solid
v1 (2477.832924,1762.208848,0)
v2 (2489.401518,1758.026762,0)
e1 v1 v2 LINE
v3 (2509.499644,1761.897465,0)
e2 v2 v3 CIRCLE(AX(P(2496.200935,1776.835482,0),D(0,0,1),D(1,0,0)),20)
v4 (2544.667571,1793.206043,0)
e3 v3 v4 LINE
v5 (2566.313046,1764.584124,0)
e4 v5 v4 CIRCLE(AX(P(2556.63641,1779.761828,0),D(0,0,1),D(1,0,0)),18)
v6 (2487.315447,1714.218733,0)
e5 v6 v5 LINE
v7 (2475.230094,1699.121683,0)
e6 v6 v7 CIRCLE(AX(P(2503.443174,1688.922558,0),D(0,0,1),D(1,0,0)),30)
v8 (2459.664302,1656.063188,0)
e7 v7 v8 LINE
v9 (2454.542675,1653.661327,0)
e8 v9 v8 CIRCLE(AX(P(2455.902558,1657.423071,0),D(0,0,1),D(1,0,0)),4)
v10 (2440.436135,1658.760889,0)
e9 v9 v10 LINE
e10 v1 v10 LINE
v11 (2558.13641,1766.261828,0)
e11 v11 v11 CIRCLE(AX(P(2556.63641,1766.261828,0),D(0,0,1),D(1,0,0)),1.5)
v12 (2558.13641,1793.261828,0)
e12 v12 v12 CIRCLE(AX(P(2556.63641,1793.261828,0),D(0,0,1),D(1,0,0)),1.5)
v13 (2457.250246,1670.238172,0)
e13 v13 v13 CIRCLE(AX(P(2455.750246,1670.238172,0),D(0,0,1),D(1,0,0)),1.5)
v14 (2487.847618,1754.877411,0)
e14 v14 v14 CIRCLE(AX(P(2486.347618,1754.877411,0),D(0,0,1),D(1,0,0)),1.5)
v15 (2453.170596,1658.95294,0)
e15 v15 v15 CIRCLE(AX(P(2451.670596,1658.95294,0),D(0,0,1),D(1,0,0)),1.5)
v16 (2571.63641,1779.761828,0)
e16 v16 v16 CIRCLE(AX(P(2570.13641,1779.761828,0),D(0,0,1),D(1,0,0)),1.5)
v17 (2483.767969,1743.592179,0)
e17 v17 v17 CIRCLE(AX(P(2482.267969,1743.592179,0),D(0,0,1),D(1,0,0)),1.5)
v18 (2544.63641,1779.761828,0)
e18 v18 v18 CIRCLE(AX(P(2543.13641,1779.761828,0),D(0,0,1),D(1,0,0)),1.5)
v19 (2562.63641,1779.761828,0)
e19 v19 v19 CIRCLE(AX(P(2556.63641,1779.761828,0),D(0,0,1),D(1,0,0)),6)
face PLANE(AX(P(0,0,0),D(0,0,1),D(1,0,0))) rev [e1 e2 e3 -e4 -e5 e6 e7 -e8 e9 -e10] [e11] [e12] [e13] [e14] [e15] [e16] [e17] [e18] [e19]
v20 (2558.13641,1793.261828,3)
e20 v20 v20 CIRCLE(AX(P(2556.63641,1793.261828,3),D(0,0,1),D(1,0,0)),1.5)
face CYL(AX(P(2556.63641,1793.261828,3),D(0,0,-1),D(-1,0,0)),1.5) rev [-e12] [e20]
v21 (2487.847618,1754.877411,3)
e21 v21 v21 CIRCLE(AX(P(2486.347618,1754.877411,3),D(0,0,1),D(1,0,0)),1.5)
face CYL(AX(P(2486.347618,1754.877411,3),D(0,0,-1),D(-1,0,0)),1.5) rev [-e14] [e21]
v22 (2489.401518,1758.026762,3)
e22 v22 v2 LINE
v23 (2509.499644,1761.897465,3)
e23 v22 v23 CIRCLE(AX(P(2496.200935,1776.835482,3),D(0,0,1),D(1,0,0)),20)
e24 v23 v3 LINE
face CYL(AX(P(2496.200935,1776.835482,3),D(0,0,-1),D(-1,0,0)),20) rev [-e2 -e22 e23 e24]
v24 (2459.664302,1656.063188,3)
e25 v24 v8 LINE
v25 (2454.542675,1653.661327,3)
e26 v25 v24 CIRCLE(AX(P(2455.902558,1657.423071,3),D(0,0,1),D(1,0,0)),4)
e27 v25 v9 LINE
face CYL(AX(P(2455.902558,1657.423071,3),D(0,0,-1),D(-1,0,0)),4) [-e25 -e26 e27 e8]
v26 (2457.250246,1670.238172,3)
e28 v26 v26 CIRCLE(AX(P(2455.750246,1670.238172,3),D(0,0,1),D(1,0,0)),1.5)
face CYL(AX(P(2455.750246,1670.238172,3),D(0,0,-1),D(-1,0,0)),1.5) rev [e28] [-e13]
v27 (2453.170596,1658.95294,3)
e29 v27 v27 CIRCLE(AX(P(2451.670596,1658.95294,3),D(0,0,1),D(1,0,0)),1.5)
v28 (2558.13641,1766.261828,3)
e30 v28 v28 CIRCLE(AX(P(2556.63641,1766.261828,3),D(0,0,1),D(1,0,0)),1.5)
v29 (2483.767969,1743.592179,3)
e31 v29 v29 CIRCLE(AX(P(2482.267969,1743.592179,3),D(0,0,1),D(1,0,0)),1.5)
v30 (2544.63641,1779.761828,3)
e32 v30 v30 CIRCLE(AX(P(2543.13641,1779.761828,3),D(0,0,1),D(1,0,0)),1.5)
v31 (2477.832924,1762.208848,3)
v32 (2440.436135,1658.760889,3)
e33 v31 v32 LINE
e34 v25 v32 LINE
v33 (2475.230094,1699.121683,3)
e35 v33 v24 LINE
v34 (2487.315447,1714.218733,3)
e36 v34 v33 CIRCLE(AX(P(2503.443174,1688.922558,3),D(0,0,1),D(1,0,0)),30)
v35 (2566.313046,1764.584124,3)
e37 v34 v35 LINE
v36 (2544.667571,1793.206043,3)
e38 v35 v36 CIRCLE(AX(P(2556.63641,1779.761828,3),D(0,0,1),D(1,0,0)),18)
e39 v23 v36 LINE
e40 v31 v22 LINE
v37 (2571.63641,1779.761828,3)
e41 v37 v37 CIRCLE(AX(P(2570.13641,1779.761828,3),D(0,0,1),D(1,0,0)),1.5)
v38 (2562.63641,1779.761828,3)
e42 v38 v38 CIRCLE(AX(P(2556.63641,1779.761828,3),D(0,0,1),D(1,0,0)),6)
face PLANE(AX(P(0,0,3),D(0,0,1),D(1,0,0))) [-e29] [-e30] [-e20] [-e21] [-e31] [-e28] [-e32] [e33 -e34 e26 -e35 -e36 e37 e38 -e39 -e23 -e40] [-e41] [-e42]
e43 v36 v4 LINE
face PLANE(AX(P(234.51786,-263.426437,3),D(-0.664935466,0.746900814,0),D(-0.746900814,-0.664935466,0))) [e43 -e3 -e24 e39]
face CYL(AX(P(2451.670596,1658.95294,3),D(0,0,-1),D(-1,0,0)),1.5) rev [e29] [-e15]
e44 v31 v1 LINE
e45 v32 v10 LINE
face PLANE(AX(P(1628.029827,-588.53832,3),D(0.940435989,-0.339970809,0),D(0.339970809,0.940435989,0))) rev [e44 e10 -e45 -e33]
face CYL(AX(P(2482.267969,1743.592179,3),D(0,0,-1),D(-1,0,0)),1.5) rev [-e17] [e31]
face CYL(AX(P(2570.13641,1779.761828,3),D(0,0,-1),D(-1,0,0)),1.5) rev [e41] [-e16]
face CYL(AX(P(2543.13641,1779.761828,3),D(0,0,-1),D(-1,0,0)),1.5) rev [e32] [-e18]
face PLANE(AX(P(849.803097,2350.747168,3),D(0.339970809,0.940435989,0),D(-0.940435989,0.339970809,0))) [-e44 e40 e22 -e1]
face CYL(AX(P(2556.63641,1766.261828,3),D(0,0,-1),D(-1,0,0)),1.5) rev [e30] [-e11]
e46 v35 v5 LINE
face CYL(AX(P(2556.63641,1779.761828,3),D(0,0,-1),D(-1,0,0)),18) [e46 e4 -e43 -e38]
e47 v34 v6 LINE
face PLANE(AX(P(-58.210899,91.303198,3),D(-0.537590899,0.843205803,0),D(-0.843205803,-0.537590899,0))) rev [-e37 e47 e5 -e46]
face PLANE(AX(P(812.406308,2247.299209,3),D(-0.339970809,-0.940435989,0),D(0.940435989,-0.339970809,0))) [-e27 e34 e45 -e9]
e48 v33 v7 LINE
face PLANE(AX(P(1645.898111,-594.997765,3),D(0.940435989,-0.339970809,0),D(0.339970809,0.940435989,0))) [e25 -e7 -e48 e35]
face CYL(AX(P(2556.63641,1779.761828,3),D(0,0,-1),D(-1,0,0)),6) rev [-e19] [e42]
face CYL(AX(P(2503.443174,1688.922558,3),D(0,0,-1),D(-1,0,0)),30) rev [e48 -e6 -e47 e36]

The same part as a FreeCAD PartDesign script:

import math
import FreeCAD as App
import Part
import Sketcher

V = App.Vector
Q = App.Units.Quantity

doc = App.newDocument("Part")
body = doc.addObject("PartDesign::Body", "Body")

# Sketch on XY plane
sketch1 = body.newObject("Sketcher::SketchObject", "Sketch")
sketch1.AttachmentSupport = (doc.getObject("XY_Plane"), [""])
sketch1.MapMode = "FlatFace"
sketch1.addGeometry(Part.LineSegment(V(2489.401518, 1758.026762, 0), V(2477.832924, 1762.208848, 0)), False)
sketch1.addGeometry(Part.LineSegment(V(2477.832924, 1762.208848, 0), V(2447.235551, 1677.569609, 0)), False)
sketch1.addGeometry(Part.LineSegment(V(2447.235551, 1677.569609, 0), V(2440.436135, 1658.760889, 0)), False)
sketch1.addGeometry(Part.LineSegment(V(2440.436135, 1658.760889, 0), V(2441.846789, 1658.250933, 0)), False)
sketch1.addGeometry(Part.LineSegment(V(2441.846789, 1658.250933, 0), V(2446.548969, 1656.551079, 0)), False)
sketch1.addGeometry(Part.LineSegment(V(2446.548969, 1656.551079, 0), V(2453.602239, 1654.001298, 0)), False)
sketch1.addGeometry(Part.LineSegment(V(2453.602239, 1654.001298, 0), V(2454.542675, 1653.661327, 0)), False)
sketch1.addGeometry(Part.ArcOfCircle(Part.Circle(V(2455.902558, 1657.423071, 0), V(0, 0, 1), 4), math.radians(-109.875096), math.radians(-19.875096)), False)
sketch1.addGeometry(Part.LineSegment(V(2459.664302, 1656.063188, 0), V(2465.103835, 1671.110164, 0)), False)
sketch1.addGeometry(Part.LineSegment(V(2465.103835, 1671.110164, 0), V(2466.691626, 1675.502353, 0)), False)
sketch1.addGeometry(Part.LineSegment(V(2466.691626, 1675.502353, 0), V(2475.230094, 1699.121683, 0)), False)
sketch1.addGeometry(Part.ArcOfCircle(Part.Circle(V(2503.443174, 1688.922558, 0), V(0, 0, 1), 30), math.radians(122.519791), math.radians(160.124904)), False)
sketch1.addGeometry(Part.LineSegment(V(2487.315447, 1714.218733, 0), V(2566.313046, 1764.584124, 0)), False)
sketch1.addGeometry(Part.ArcOfCircle(Part.Circle(V(2556.63641, 1779.761828, 0), V(0, 0, 1), 18), math.radians(-57.480209), math.radians(131.677375)), False)
sketch1.addGeometry(Part.LineSegment(V(2544.667571, 1793.206043, 0), V(2509.499644, 1761.897465, 0)), False)
sketch1.addGeometry(Part.ArcOfCircle(Part.Circle(V(2496.200935, 1776.835482, 0), V(0, 0, 1), 20), math.radians(-109.875096), math.radians(-48.322625)), False)
sketch1.addGeometry(Part.Circle(V(2451.670596, 1658.95294, 0), V(0, 0, 1), 1.5), False)
sketch1.addGeometry(Part.Circle(V(2455.750246, 1670.238172, 0), V(0, 0, 1), 1.5), False)
sketch1.addGeometry(Part.Circle(V(2482.267969, 1743.592179, 0), V(0, 0, 1), 1.5), False)
sketch1.addGeometry(Part.Circle(V(2486.347618, 1754.877411, 0), V(0, 0, 1), 1.5), False)
sketch1.addGeometry(Part.Circle(V(2556.63641, 1766.261828, 0), V(0, 0, 1), 1.5), False)
sketch1.addGeometry(Part.Circle(V(2543.13641, 1779.761828, 0), V(0, 0, 1), 1.5), False)
sketch1.addGeometry(Part.Circle(V(2556.63641, 1779.761828, 0), V(0, 0, 1), 6), False)
sketch1.addGeometry(Part.Circle(V(2570.13641, 1779.761828, 0), V(0, 0, 1), 1.5), False)
sketch1.addGeometry(Part.Circle(V(2556.63641, 1793.261828, 0), V(0, 0, 1), 1.5), False)
sketch1.addConstraint(Sketcher.Constraint("Coincident", 0, 2, 1, 1))
sketch1.addConstraint(Sketcher.Constraint("Coincident", 1, 2, 2, 1))
sketch1.addConstraint(Sketcher.Constraint("Coincident", 2, 2, 3, 1))
sketch1.addConstraint(Sketcher.Constraint("Coincident", 3, 2, 4, 1))
sketch1.addConstraint(Sketcher.Constraint("Coincident", 4, 2, 5, 1))
sketch1.addConstraint(Sketcher.Constraint("Coincident", 5, 2, 6, 1))
sketch1.addConstraint(Sketcher.Constraint("Tangent", 6, 2, 7, 1))
sketch1.addConstraint(Sketcher.Constraint("Tangent", 7, 2, 8, 1))
sketch1.addConstraint(Sketcher.Constraint("Coincident", 8, 2, 9, 1))
sketch1.addConstraint(Sketcher.Constraint("Coincident", 9, 2, 10, 1))
sketch1.addConstraint(Sketcher.Constraint("Tangent", 10, 2, 11, 2))
sketch1.addConstraint(Sketcher.Constraint("Tangent", 11, 1, 12, 1))
sketch1.addConstraint(Sketcher.Constraint("Tangent", 12, 2, 13, 1))
sketch1.addConstraint(Sketcher.Constraint("Tangent", 13, 2, 14, 1))
sketch1.addConstraint(Sketcher.Constraint("Tangent", 14, 2, 15, 2))
sketch1.addConstraint(Sketcher.Constraint("Tangent", 15, 1, 0, 1))
sketch1.addConstraint(Sketcher.Constraint("Coincident", 22, 3, 13, 3))
sketch1.addConstraint(Sketcher.Constraint("Equal", 16, 17))
sketch1.addConstraint(Sketcher.Constraint("Equal", 17, 18))
sketch1.addConstraint(Sketcher.Constraint("Equal", 18, 19))
sketch1.addConstraint(Sketcher.Constraint("Equal", 19, 20))
sketch1.addConstraint(Sketcher.Constraint("Equal", 20, 21))
sketch1.addConstraint(Sketcher.Constraint("Equal", 21, 23))
sketch1.addConstraint(Sketcher.Constraint("Equal", 23, 24))
sketch1.addConstraint(Sketcher.Constraint("Perpendicular", 0, 1))
sketch1.addConstraint(Sketcher.Constraint("Parallel", 1, 2))
sketch1.addConstraint(Sketcher.Constraint("Perpendicular", 2, 3))
sketch1.addConstraint(Sketcher.Constraint("Parallel", 3, 4))
sketch1.addConstraint(Sketcher.Constraint("Parallel", 4, 5))
sketch1.addConstraint(Sketcher.Constraint("Parallel", 5, 6))
sketch1.addConstraint(Sketcher.Constraint("Perpendicular", 6, 8))
sketch1.addConstraint(Sketcher.Constraint("Parallel", 8, 9))
sketch1.addConstraint(Sketcher.Constraint("Parallel", 9, 10))
sketch1.addConstraint(Sketcher.Constraint("Horizontal", 13, 3, 21, 3))
sketch1.addConstraint(Sketcher.Constraint("Horizontal", 22, 3, 23, 3))
sketch1.addConstraint(Sketcher.Constraint("Vertical", 13, 3, 20, 3))
sketch1.addConstraint(Sketcher.Constraint("Vertical", 22, 3, 24, 3))
sketch1.addConstraint(Sketcher.Constraint("Diameter", 16, Q("3 mm")))
sketch1.addConstraint(Sketcher.Constraint("Diameter", 22, Q("12 mm")))
sketch1.addConstraint(Sketcher.Constraint("Radius", 7, Q("4 mm")))
sketch1.addConstraint(Sketcher.Constraint("Radius", 11, Q("30 mm")))
sketch1.addConstraint(Sketcher.Constraint("Radius", 13, Q("18 mm")))
sketch1.addConstraint(Sketcher.Constraint("Radius", 15, Q("20 mm")))
sketch1.addConstraint(Sketcher.Constraint("Distance", 1, Q("90 mm")))
sketch1.addConstraint(Sketcher.Constraint("Distance", 2, Q("20 mm")))
sketch1.addConstraint(Sketcher.Constraint("Distance", 4, Q("5 mm")))
sketch1.addConstraint(Sketcher.Constraint("Distance", 6, Q("1 mm")))
sketch1.addConstraint(Sketcher.Constraint("Distance", 8, Q("16 mm")))
sketch1.addConstraint(Sketcher.Constraint("DistanceX", 21, 3, 23, 3, Q("27 mm")))
sketch1.addConstraint(Sketcher.Constraint("DistanceY", 20, 3, 24, 3, Q("27 mm")))
sketch1.addConstraint(Sketcher.Constraint("Distance", 3, Q("1.5 mm")))
sketch1.addConstraint(Sketcher.Constraint("Distance", 5, Q("7.5 mm")))
sketch1.addConstraint(Sketcher.Constraint("DistanceY", 20, 3, 13, 3, Q("13.5 mm")))
sketch1.addConstraint(Sketcher.Constraint("DistanceX", 21, 3, 13, 3, Q("13.5 mm")))
sketch1.addConstraint(Sketcher.Constraint("DistanceY", -1, 1, 5, 2, Q("1654.001298 mm")))
sketch1.addConstraint(Sketcher.Constraint("DistanceX", -1, 1, 7, 2, Q("2459.664302 mm")))
sketch1.addConstraint(Sketcher.Constraint("DistanceY", 7, 3, 17, 3, Q("12.815101 mm")))
sketch1.addConstraint(Sketcher.Constraint("DistanceX", 19, 3, 15, 1, Q("3.0539 mm")))
sketch1.addConstraint(Sketcher.Constraint("Distance", 0, Q("12.30131 mm")))
sketch1.addConstraint(Sketcher.Constraint("Distance", 12, Q("93.68721 mm")))
sketch1.addConstraint(Sketcher.Constraint("DistanceY", -1, 1, 7, 3, Q("1657.423071 mm")))
sketch1.addConstraint(Sketcher.Constraint("DistanceY", -1, 1, 11, 3, Q("1688.922558 mm")))
sketch1.addConstraint(Sketcher.Constraint("DistanceX", -1, 1, 13, 3, Q("2556.63641 mm")))
sketch1.addConstraint(Sketcher.Constraint("DistanceY", -1, 1, 16, 3, Q("1658.95294 mm")))
sketch1.addConstraint(Sketcher.Constraint("DistanceX", -1, 1, 18, 3, Q("2482.267969 mm")))
sketch1.addConstraint(Sketcher.Constraint("DistanceY", -1, 1, 18, 3, Q("1743.592179 mm")))
sketch1.addConstraint(Sketcher.Constraint("DistanceY", -1, 1, 19, 3, Q("1754.877411 mm")))
sketch1.addConstraint(Sketcher.Constraint("DistanceX", 16, 3, 7, 3, Q("4.231962 mm")))
sketch1.addConstraint(Sketcher.Constraint("DistanceX", 16, 3, 17, 3, Q("4.07965 mm")))
sketch1.addConstraint(Sketcher.Constraint("DistanceX", 8, 2, 9, 2, Q("1.587791 mm")))
pad1 = body.newObject("PartDesign::Pad", "Pad")
pad1.Profile = sketch1
pad1.Length = 3

doc.recompute()
